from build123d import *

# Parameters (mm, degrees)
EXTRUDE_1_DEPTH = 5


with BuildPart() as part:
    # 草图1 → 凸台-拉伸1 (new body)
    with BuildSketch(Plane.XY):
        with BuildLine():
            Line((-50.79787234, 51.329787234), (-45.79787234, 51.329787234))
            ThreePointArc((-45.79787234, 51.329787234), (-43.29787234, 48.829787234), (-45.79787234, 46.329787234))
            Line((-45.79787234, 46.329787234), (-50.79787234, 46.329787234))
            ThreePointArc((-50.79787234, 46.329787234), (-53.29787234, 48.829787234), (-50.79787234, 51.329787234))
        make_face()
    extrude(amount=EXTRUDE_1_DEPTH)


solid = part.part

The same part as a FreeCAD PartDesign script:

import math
import FreeCAD as App
import Part
import Sketcher
from FreeCAD import Vector
Q = App.Units.Quantity

doc = App.newDocument("Part")
body = doc.addObject("PartDesign::Body", "Body")

sketch1 = body.newObject("Sketcher::SketchObject", "Sketch")
sketch1.AttachmentSupport = (doc.getObject("XY_Plane"), [""])
sketch1.MapMode = "FlatFace"
sketch1.addGeometry([
    Part.LineSegment(Vector(-45.8, 51.3, 0), Vector(-50.8, 51.3, 0)),
    Part.ArcOfCircle(Part.Circle(Vector(-50.8, 48.8, 0), Vector(0, 0, 1), 2.5), math.radians(90), math.radians(270)),
    Part.LineSegment(Vector(-50.8, 46.3, 0), Vector(-45.8, 46.3, 0)),
    Part.ArcOfCircle(Part.Circle(Vector(-45.8, 48.8, 0), Vector(0, 0, 1), 2.5), math.radians(-90), math.radians(90)),
], False)
sketch1.addConstraint([
    Sketcher.Constraint("Tangent", 0, 2, 1, 1),
    Sketcher.Constraint("Tangent", 1, 2, 2, 1),
    Sketcher.Constraint("Tangent", 2, 2, 3, 1),
    Sketcher.Constraint("Tangent", 3, 2, 0, 1),
    Sketcher.Constraint("Horizontal", 0),
    Sketcher.Constraint("Horizontal", 2),
    Sketcher.Constraint("Radius", 1, Q("2.5 mm")),
    Sketcher.Constraint("DistanceX", 0, 2, 0, 1, Q("5 mm")),
    Sketcher.Constraint("DistanceX", 1, 3, -1, 1, Q("50.797872 mm")),
    Sketcher.Constraint("DistanceY", -1, 1, 1, 3, Q("48.829787 mm")),
])
pad1 = body.newObject("PartDesign::Pad", "Pad")
pad1.Profile = sketch1
pad1.Length = 5

doc.recompute()
